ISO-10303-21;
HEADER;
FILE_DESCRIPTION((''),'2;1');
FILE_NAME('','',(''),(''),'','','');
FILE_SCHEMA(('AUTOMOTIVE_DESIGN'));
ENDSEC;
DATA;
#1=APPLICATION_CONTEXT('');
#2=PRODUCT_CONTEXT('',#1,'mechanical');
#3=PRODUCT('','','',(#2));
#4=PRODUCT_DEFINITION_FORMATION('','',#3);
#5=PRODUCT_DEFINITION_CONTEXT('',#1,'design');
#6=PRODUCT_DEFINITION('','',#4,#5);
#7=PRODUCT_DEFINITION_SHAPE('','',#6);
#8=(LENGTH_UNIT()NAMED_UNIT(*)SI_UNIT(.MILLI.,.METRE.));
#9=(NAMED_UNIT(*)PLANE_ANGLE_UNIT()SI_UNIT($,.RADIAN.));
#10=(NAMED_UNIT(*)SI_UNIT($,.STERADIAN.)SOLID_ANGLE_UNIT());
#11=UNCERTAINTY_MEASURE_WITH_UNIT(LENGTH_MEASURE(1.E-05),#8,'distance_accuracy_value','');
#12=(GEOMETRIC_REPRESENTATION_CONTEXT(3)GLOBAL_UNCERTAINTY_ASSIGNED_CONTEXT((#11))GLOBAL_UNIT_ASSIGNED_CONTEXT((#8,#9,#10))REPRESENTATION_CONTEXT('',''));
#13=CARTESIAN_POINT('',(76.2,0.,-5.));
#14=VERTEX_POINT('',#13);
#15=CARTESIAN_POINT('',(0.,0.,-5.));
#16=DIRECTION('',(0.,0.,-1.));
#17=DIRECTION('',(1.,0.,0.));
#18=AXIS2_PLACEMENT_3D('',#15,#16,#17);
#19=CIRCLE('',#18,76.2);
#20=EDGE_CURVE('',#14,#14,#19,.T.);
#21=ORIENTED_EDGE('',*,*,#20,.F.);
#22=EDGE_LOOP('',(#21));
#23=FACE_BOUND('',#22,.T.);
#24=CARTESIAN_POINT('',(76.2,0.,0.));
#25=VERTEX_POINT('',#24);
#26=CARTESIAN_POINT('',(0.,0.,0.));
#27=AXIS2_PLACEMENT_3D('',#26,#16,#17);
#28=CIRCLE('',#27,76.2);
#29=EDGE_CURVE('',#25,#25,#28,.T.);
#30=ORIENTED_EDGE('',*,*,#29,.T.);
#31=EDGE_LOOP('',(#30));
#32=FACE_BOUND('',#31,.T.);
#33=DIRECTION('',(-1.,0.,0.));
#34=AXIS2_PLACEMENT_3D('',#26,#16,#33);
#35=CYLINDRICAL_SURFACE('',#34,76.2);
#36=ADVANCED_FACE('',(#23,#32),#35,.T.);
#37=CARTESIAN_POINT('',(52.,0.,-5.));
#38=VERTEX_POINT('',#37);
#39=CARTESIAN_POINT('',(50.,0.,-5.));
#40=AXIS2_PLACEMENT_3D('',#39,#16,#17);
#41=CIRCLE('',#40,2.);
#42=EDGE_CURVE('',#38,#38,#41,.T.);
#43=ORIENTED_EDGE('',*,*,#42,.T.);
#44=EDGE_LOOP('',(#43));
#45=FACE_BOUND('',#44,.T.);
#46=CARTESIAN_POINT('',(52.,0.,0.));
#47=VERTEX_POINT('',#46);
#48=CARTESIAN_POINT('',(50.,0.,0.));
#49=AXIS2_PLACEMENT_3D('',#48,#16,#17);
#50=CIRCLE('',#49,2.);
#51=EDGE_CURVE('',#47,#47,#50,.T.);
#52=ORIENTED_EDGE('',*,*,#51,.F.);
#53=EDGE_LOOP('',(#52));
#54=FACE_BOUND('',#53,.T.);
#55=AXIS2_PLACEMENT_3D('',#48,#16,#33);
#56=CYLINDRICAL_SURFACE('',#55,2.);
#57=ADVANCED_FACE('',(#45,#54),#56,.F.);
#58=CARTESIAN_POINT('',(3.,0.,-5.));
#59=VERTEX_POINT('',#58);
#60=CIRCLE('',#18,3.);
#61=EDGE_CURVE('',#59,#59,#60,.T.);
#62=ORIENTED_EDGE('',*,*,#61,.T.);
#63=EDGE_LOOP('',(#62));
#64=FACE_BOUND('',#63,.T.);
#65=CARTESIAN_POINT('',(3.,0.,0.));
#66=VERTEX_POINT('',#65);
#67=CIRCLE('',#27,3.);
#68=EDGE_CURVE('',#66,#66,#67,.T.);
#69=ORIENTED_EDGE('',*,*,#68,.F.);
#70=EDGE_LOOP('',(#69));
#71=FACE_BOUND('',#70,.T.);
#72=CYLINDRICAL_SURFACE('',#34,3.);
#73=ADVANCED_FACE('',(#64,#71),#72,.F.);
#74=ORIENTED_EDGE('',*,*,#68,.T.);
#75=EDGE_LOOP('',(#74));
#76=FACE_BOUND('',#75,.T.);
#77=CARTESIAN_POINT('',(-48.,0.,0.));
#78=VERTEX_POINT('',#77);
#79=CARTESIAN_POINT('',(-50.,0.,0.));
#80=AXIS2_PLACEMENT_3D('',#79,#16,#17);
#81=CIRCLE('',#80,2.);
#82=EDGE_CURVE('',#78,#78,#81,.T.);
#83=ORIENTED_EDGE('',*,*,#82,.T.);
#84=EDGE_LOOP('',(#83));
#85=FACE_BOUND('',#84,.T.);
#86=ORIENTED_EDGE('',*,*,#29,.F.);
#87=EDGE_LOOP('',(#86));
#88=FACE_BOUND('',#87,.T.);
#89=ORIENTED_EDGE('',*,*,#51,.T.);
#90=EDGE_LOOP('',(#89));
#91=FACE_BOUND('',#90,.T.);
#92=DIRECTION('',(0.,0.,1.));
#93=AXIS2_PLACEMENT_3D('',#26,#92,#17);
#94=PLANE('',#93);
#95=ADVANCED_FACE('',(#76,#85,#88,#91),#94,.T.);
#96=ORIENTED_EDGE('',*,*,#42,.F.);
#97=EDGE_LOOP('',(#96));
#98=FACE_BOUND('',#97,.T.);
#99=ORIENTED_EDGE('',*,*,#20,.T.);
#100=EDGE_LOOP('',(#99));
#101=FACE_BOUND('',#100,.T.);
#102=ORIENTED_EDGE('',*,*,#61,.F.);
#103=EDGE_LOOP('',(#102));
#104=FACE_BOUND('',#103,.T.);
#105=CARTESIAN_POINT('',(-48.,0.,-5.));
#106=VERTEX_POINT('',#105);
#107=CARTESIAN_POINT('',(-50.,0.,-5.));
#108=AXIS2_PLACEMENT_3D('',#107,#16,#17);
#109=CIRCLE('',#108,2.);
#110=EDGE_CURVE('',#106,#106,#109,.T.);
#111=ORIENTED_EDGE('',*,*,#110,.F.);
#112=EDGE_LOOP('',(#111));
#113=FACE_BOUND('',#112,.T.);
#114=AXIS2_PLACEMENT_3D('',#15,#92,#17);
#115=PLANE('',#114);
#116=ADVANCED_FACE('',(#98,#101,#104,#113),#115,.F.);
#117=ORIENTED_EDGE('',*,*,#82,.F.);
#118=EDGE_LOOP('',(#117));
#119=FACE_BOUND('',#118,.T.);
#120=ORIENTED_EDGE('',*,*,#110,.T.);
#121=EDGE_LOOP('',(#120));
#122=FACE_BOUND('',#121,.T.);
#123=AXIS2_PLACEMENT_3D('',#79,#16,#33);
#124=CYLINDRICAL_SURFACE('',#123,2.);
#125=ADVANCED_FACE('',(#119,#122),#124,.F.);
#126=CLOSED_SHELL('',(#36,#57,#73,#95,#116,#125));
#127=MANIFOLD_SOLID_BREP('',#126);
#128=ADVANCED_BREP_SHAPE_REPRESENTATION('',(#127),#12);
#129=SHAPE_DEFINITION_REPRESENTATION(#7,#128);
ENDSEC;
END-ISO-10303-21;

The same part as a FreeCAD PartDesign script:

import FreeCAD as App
import Part
import Sketcher

doc = App.newDocument("Part")
body = doc.addObject("PartDesign::Body", "Body")

# Sketch on XY plane
sketch1 = body.newObject("Sketcher::SketchObject", "Sketch")
sketch1.AttachmentSupport = (doc.getObject("XY_Plane"), [""])
sketch1.MapMode = "FlatFace"
sketch1.AttachmentOffset = App.Placement(App.Vector(0, 0, -5), App.Rotation())
sketch1.addGeometry([
    Part.Circle(App.Vector(0, 0, 0), App.Vector(0, 0, 1), 76.2),
    Part.Circle(App.Vector(-50, 0, 0), App.Vector(0, 0, 1), 2),
    Part.Circle(App.Vector(0, 0, 0), App.Vector(0, 0, 1), 3),
    Part.Circle(App.Vector(50, 0, 0), App.Vector(0, 0, 1), 2),
], False)
sketch1.addConstraint([
    Sketcher.Constraint("Coincident", 0, 3, -1, 1),
    Sketcher.Constraint("Coincident", 2, 3, -1, 1),
    Sketcher.Constraint("Equal", 1, 3),
    Sketcher.Constraint("Symmetric", 1, 3, 3, 3, -1, 1),
    Sketcher.Constraint("PointOnObject", 1, 3, -1),
    Sketcher.Constraint("Diameter", 1, 4.0),
    Sketcher.Constraint("Diameter", 2, 6.0),
    Sketcher.Constraint("Diameter", 0, 152.4),
    Sketcher.Constraint("DistanceX", 1, 3, -1, 1, 50.0),
])
pad1 = body.newObject("PartDesign::Pad", "Pad")
pad1.Profile = sketch1
pad1.Length = 5

doc.recompute()
